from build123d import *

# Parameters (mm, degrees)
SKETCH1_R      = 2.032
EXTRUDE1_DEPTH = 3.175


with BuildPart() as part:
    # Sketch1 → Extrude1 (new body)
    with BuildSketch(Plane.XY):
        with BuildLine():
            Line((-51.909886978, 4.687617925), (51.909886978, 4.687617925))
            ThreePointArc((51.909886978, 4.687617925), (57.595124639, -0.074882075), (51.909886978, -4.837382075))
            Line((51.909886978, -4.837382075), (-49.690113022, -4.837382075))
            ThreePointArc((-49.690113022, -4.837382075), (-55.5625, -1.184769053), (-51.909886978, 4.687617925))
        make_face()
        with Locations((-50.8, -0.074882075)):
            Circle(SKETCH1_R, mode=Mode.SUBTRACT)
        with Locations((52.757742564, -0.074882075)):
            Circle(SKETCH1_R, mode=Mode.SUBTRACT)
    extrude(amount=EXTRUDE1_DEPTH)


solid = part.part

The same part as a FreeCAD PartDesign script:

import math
import FreeCAD as App
import Part
import Sketcher
from FreeCAD import Vector
Q = App.Units.Quantity

doc = App.newDocument("Part")
body = doc.addObject("PartDesign::Body", "Body")

sketch1 = body.newObject("Sketcher::SketchObject", "Sketch")
sketch1.AttachmentSupport = (doc.getObject("XY_Plane"), [""])
sketch1.MapMode = "FlatFace"
sketch1.addGeometry(Part.LineSegment(Vector(51.9, 4.7, 0), Vector(-51.9, 4.7, 0)), False)
sketch1.addGeometry(Part.ArcOfCircle(Part.Circle(Vector(-50.8, -0.1, 0), Vector(0, 0, 1), 4.9), math.radians(103), math.radians(283)), False)
sketch1.addGeometry(Part.LineSegment(Vector(-49.7, -4.8, 0), Vector(51.9, -4.8, 0)), False)
sketch1.addGeometry(Part.ArcOfCircle(Part.Circle(Vector(52.8, -0.1, 0), Vector(0, 0, 1), 4.8), math.radians(-100), math.radians(100)), False)
sketch1.addGeometry(Part.Circle(Vector(52.8, -0.1, 0), Vector(0, 0, 1), 2), False)
sketch1.addGeometry(Part.Circle(Vector(-50.8, -0.1, 0), Vector(0, 0, 1), 2), False)
sketch1.addConstraint(Sketcher.Constraint("Coincident", 0, 2, 1, 1))
sketch1.addConstraint(Sketcher.Constraint("Coincident", 1, 2, 2, 1))
sketch1.addConstraint(Sketcher.Constraint("Coincident", 2, 2, 3, 1))
sketch1.addConstraint(Sketcher.Constraint("Coincident", 3, 2, 0, 1))
sketch1.addConstraint(Sketcher.Constraint("Horizontal", 0))
sketch1.addConstraint(Sketcher.Constraint("Horizontal", 2))
sketch1.addConstraint(Sketcher.Constraint("Coincident", 4, 3, 3, 3))
sketch1.addConstraint(Sketcher.Constraint("Coincident", 5, 3, 1, 3))
sketch1.addConstraint(Sketcher.Constraint("Equal", 4, 5))
sketch1.addConstraint(Sketcher.Constraint("Horizontal", 1, 3, 3, 3))
sketch1.addConstraint(Sketcher.Constraint("Vertical", 2, 2, 3, 2))
sketch1.addConstraint(Sketcher.Constraint("Diameter", 4, Q("0.16 in")))
sketch1.addConstraint(Sketcher.Constraint("DistanceX", 2, 1, 2, 2, Q("4 in")))
sketch1.addConstraint(Sketcher.Constraint("DistanceX", 1, 3, -1, 1, Q("2 in")))
sketch1.addConstraint(Sketcher.Constraint("Radius", 1, 4.890118))
sketch1.addConstraint(Sketcher.Constraint("DistanceY", 1, 3, 0, 2, Q("0.1875 in")))
sketch1.addConstraint(Sketcher.Constraint("Radius", 3, 4.837382))
sketch1.addConstraint(Sketcher.Constraint("DistanceY", 1, 3, -1, 1, 0.074882))
pad1 = body.newObject("PartDesign::Pad", "Pad")
pad1.Profile = sketch1
pad1.Length = Q("0.125 in")

doc.recompute()
